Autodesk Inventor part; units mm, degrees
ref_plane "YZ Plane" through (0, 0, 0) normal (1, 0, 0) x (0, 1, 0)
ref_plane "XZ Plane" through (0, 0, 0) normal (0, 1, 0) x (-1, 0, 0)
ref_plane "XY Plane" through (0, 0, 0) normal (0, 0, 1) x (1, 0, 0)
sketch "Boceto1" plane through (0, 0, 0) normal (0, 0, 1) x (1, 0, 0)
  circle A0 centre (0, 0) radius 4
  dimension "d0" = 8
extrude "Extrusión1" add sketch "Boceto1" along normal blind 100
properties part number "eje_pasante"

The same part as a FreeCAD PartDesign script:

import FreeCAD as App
import Part
import Sketcher

V = App.Vector

doc = App.newDocument("Part")
body = doc.addObject("PartDesign::Body", "Body")

# Sketch on XY plane
sketch1 = body.newObject("Sketcher::SketchObject", "Sketch")
sketch1.AttachmentSupport = (doc.getObject("XY_Plane"), [""])
sketch1.MapMode = "FlatFace"
sketch1.addGeometry(Part.Circle(V(0, 0, 0), V(0, 0, 1), 4), False)
sketch1.addConstraint([
    Sketcher.Constraint("Coincident", 0, 3, -1, 1),
    Sketcher.Constraint("Diameter", 0, 8.0),
])
pad1 = body.newObject("PartDesign::Pad", "Pad")
pad1.Profile = sketch1
pad1.Length = 100

doc.recompute()
